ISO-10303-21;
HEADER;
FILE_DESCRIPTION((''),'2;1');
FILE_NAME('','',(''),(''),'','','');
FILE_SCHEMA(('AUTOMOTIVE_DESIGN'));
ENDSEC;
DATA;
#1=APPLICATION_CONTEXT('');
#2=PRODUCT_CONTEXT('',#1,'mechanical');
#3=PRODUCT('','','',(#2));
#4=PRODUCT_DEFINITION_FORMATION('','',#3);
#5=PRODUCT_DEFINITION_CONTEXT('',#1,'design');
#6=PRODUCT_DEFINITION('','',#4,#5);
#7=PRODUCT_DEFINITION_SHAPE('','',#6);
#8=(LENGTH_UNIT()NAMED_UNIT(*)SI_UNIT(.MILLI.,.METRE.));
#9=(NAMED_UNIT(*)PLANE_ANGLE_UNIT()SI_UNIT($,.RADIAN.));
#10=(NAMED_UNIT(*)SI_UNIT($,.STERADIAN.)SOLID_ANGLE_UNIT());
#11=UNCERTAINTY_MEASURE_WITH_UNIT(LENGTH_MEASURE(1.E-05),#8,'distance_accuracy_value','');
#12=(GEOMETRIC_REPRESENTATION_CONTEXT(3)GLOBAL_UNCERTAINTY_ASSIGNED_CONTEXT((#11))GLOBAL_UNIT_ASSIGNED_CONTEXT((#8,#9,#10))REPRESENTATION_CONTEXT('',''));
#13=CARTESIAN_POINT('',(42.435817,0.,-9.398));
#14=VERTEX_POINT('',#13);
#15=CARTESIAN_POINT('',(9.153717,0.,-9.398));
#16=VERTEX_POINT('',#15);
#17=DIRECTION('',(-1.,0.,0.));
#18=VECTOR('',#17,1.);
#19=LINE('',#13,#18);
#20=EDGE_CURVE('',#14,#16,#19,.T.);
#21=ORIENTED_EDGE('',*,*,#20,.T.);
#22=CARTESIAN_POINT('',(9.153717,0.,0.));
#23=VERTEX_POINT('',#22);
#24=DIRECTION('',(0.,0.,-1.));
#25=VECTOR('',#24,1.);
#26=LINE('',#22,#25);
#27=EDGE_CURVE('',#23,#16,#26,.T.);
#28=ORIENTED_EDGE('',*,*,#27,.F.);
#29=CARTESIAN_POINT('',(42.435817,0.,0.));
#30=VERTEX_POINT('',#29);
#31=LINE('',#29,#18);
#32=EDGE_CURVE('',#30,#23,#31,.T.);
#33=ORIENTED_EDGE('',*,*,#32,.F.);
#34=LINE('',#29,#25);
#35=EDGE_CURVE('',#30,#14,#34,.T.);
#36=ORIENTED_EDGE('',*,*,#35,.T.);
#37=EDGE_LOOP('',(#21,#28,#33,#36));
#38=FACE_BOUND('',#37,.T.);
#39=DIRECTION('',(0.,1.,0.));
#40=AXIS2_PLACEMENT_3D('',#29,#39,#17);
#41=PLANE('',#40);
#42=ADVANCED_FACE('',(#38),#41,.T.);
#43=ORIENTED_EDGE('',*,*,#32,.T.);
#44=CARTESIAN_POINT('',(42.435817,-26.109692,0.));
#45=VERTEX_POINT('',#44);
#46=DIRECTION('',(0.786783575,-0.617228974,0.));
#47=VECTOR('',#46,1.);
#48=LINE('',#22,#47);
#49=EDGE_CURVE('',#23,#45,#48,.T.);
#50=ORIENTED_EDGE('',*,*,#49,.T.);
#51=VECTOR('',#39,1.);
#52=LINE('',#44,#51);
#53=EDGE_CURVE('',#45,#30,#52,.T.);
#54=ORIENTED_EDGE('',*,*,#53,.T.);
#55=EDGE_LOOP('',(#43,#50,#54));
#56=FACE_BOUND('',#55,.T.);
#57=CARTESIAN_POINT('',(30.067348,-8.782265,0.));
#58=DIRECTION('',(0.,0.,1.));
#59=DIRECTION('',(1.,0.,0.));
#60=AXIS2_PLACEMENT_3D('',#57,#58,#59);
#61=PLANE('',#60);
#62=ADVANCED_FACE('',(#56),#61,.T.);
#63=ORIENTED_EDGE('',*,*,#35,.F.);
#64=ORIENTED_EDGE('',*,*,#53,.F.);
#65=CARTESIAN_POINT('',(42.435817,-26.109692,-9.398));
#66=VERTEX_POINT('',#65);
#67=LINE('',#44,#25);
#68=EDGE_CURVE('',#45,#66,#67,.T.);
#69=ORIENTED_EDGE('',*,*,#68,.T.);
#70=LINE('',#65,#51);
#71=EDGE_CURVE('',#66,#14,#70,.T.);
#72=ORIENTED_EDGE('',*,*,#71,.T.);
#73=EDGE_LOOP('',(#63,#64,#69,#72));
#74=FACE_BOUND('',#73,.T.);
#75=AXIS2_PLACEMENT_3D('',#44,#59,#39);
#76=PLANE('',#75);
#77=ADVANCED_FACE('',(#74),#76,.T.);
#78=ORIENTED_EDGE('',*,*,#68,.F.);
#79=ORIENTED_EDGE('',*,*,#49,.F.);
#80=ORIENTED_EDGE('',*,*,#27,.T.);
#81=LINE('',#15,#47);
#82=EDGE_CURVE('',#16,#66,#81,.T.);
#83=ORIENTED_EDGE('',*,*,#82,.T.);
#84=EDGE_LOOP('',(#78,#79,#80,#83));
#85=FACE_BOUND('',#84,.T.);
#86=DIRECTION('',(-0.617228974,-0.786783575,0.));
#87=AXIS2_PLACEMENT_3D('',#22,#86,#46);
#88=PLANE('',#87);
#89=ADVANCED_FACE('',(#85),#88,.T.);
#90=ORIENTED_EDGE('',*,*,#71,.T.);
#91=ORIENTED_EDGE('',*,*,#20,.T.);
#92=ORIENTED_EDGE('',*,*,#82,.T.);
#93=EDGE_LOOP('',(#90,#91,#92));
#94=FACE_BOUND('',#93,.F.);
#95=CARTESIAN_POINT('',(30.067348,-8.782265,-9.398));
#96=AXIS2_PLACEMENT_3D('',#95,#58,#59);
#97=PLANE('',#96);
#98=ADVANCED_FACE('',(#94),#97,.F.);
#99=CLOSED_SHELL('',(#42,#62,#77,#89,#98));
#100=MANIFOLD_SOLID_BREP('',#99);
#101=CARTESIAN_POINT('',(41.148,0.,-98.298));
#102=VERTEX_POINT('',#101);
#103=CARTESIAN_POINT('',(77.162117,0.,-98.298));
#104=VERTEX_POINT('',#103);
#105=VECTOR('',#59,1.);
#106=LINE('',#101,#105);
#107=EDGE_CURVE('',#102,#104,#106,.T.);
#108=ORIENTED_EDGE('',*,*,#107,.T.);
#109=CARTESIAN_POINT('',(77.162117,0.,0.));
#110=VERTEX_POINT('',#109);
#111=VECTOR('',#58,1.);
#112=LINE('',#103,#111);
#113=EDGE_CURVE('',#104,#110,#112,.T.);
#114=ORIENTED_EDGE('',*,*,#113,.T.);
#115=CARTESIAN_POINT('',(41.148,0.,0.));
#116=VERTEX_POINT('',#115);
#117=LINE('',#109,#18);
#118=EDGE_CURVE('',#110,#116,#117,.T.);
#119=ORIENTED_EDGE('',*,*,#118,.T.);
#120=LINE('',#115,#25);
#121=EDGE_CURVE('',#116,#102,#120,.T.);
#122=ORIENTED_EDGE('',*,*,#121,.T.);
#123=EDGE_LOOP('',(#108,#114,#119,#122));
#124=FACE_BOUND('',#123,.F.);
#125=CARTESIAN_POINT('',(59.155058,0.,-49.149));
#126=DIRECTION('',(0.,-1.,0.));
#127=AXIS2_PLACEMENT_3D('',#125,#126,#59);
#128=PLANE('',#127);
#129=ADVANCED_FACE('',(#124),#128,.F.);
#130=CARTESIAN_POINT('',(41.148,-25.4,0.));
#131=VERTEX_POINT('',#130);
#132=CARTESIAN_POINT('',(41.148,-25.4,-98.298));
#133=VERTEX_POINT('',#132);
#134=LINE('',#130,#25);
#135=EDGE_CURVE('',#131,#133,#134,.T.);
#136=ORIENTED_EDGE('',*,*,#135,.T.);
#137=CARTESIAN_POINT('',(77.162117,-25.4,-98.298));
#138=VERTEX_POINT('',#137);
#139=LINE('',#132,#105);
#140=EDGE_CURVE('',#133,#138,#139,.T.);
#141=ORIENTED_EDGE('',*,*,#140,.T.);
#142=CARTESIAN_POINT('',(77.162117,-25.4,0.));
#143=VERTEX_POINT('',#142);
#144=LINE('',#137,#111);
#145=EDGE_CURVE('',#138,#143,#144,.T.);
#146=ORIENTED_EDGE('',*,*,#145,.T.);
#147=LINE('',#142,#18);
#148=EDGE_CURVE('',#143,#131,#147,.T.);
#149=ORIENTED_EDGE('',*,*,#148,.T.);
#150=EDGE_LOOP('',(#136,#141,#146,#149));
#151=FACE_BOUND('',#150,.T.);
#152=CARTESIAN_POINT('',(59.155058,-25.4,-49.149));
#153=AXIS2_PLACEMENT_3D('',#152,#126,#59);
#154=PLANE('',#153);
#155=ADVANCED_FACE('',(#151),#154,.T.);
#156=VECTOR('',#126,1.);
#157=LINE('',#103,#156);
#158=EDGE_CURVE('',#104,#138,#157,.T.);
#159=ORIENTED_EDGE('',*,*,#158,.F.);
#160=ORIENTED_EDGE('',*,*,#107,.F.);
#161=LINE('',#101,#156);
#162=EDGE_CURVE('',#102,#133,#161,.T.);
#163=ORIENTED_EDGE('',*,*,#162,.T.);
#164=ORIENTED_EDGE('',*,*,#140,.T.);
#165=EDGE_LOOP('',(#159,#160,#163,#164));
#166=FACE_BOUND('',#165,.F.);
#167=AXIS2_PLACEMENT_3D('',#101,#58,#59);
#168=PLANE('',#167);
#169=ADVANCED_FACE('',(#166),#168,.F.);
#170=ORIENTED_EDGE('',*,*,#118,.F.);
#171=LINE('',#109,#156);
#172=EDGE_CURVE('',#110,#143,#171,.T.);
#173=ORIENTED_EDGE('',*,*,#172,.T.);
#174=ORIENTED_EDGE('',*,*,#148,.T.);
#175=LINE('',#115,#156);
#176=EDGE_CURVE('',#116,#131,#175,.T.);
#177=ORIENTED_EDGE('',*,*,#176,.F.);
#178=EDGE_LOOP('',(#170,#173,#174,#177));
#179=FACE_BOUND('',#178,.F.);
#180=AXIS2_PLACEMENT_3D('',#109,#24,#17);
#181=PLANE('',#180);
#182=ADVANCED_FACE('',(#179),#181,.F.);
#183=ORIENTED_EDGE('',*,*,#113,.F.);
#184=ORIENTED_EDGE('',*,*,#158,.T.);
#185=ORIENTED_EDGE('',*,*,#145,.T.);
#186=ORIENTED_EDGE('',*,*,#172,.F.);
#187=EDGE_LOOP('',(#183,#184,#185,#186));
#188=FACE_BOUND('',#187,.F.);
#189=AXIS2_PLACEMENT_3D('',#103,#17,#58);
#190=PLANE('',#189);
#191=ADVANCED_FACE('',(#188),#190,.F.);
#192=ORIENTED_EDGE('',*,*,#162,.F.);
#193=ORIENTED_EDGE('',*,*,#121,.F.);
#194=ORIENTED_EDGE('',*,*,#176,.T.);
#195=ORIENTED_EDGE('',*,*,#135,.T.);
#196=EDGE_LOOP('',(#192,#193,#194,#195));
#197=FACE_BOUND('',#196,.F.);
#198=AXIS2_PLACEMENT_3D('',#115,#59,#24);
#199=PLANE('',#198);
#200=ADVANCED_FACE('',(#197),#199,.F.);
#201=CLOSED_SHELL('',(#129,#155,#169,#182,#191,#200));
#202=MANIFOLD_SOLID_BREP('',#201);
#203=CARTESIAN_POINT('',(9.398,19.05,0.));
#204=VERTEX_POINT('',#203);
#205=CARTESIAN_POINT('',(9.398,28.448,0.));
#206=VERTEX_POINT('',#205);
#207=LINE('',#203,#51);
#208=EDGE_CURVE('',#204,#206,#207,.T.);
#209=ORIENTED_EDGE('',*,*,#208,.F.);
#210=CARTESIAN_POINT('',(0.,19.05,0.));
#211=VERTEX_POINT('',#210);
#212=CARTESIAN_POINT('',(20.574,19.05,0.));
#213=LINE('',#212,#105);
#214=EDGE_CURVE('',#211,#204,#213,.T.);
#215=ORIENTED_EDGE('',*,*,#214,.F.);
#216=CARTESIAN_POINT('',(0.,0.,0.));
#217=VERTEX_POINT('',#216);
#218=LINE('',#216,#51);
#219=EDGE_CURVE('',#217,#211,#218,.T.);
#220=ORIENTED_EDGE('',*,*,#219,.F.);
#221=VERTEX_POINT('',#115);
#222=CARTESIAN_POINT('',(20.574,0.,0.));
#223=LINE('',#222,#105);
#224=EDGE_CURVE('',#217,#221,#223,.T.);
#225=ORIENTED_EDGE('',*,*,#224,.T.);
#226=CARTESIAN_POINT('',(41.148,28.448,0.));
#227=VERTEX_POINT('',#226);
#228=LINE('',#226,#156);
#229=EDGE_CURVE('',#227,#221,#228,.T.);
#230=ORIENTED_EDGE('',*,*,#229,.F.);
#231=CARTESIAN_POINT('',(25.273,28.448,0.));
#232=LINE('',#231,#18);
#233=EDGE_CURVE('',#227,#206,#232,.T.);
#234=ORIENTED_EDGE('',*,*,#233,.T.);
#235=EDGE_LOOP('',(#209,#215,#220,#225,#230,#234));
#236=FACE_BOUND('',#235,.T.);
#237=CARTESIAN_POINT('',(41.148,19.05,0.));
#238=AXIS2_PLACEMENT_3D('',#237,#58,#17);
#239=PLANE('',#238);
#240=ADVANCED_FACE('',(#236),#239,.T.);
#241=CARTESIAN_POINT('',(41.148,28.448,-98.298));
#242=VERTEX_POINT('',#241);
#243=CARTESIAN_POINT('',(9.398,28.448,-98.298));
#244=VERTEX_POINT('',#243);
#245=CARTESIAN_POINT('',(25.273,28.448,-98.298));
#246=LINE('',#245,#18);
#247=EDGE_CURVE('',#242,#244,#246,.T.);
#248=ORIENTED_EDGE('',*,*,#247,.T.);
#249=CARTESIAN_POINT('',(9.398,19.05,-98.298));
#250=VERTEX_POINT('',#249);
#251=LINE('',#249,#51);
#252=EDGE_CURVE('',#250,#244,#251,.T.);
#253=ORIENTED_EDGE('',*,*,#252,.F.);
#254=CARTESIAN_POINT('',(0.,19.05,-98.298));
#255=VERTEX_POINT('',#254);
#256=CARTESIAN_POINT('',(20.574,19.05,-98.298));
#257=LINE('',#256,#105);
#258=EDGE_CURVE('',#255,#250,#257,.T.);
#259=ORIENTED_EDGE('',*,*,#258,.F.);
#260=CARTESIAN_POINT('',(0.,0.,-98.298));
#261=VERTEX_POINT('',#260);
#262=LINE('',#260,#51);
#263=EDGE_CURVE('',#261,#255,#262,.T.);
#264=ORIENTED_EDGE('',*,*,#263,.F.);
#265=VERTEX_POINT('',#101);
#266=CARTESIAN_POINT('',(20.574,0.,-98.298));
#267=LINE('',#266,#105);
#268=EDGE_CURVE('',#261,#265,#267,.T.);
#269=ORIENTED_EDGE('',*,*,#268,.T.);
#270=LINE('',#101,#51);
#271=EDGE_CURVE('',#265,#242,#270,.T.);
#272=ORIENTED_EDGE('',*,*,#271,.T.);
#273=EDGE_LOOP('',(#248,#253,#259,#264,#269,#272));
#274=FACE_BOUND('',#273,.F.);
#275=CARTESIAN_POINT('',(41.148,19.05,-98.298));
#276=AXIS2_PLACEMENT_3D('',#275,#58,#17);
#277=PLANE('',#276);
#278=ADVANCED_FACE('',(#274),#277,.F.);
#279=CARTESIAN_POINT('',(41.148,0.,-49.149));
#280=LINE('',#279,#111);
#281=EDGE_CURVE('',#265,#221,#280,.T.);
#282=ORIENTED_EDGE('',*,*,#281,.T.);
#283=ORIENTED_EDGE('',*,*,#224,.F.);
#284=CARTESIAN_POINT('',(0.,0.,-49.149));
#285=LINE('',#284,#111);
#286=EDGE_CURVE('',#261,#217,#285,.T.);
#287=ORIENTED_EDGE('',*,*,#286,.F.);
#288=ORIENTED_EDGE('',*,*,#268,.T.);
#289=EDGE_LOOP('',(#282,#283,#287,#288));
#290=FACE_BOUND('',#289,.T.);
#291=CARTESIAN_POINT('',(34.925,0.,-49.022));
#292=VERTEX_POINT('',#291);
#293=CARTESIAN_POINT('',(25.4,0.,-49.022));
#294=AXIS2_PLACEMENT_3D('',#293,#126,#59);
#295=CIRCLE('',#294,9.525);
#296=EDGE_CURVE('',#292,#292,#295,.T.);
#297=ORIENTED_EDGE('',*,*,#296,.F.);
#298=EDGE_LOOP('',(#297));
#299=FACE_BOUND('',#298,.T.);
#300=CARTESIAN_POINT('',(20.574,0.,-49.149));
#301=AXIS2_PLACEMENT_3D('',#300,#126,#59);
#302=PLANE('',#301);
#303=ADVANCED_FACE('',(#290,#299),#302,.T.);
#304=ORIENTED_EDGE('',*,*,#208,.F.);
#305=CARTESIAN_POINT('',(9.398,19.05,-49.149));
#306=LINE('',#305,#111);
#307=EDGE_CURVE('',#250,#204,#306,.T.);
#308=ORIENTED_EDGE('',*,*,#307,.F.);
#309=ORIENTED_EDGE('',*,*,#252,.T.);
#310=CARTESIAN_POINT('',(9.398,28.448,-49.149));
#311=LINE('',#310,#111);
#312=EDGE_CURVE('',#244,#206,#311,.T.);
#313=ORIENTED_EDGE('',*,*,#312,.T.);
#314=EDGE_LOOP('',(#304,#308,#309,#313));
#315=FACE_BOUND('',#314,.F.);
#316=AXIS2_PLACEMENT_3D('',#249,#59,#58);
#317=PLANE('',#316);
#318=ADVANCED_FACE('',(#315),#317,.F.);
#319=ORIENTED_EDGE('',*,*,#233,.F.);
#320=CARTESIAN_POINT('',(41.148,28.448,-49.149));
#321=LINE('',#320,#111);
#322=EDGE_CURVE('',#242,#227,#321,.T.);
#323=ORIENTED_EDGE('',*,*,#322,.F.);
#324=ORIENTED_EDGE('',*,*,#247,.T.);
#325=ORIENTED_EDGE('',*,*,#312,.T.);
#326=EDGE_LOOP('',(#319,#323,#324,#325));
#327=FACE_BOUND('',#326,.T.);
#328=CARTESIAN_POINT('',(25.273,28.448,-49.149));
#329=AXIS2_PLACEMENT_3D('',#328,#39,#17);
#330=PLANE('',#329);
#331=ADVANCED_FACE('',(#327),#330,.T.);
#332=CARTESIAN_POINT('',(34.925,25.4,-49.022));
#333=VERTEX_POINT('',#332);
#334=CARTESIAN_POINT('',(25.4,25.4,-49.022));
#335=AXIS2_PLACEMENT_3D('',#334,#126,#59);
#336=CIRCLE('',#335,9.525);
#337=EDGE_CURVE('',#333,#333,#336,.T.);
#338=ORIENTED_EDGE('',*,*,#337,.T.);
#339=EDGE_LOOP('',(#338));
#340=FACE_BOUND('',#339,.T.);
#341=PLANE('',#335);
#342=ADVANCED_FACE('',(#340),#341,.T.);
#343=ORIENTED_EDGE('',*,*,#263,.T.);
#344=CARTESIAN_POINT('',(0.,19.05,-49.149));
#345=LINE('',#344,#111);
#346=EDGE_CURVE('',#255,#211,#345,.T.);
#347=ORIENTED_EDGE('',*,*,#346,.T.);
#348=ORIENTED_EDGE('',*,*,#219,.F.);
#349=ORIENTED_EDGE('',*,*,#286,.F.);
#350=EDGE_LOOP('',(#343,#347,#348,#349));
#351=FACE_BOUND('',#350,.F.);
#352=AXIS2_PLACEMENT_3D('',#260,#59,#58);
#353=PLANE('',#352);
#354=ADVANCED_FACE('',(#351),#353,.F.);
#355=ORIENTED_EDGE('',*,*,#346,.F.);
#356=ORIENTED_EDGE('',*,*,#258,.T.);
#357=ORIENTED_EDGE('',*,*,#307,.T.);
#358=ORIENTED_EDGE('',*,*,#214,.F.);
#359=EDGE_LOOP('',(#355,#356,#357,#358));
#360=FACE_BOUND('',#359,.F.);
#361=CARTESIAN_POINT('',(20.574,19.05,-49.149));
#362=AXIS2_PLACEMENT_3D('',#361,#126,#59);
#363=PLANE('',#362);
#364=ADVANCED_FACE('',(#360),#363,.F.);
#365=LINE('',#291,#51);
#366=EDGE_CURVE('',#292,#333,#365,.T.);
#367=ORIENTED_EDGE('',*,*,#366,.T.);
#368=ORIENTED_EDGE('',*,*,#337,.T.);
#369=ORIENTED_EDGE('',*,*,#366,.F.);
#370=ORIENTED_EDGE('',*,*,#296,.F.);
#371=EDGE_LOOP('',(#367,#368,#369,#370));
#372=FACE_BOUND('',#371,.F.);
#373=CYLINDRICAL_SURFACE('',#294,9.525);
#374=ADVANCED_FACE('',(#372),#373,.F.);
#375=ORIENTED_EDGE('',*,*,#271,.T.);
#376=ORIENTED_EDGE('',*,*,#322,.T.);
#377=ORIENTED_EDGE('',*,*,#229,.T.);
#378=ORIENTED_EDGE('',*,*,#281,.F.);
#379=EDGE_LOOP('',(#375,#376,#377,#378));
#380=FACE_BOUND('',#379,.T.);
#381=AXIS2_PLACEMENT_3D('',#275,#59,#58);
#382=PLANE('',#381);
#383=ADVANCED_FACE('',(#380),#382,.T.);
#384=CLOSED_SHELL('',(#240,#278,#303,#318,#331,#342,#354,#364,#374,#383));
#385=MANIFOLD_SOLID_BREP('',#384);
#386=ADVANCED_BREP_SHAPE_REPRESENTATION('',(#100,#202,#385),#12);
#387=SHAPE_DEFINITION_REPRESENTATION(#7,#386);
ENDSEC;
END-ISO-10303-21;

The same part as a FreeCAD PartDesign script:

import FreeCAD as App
import Part
import Sketcher
Q = App.Units.Quantity


def add_polygon(sketch, points):
    """Adds a closed chain of lines whose ends are joined by coincident constraints."""
    first, n = sketch.GeometryCount, len(points)
    for a, b in zip(points, points[1:] + points[:1]):
        sketch.addGeometry(Part.LineSegment(App.Vector(*a, 0), App.Vector(*b, 0)), False)
    for i in range(n):
        sketch.addConstraint(Sketcher.Constraint("Coincident", first + i, 2, first + (i + 1) % n, 1))

doc = App.newDocument("Part")
body = doc.addObject("PartDesign::Body", "Body")

# Sketch on XZ plane
sketch1 = body.newObject("Sketcher::SketchObject", "Sketch")
sketch1.AttachmentSupport = (doc.getObject("XZ_Plane"), [""])
sketch1.MapMode = "FlatFace"
add_polygon(sketch1, [(0, 0), (0, -98), (41, -98), (41, 0)])  # lines 0-3
sketch1.addConstraint(Sketcher.Constraint("Vertical", 0))
sketch1.addConstraint(Sketcher.Constraint("Horizontal", 1))
sketch1.addConstraint(Sketcher.Constraint("Vertical", 2))
sketch1.addConstraint(Sketcher.Constraint("Horizontal", 3))
sketch1.addConstraint(Sketcher.Constraint("Coincident", 3, 2, -1, 1))
sketch1.addConstraint(Sketcher.Constraint("DistanceX", 1, 1, 1, 2, Q("1.62 in")))
sketch1.addConstraint(Sketcher.Constraint("DistanceY", 0, 2, 0, 1, Q("3.87 in")))
pad1 = body.newObject("PartDesign::Pad", "Pad")
pad1.Profile = sketch1
pad1.Length = Q("0.75 in")
pad1.Reversed = True

# Sketch on XZ plane
sketch2 = body.newObject("Sketcher::SketchObject", "Sketch001")
sketch2.AttachmentSupport = (doc.getObject("XZ_Plane"), [""])
sketch2.MapMode = "FlatFace"
sketch2.AttachmentOffset = App.Placement(App.Vector(0, 0, -0.75 * 25.4), App.Rotation())
add_polygon(sketch2, [(41, 0), (41, -98), (9, -98), (9, 0)])  # lines 0-3
sketch2.addConstraint(Sketcher.Constraint("Vertical", 0))
sketch2.addConstraint(Sketcher.Constraint("Horizontal", 1))
sketch2.addConstraint(Sketcher.Constraint("Vertical", 2))
sketch2.addConstraint(Sketcher.Constraint("Horizontal", 3))
sketch2.addConstraint(Sketcher.Constraint("PointOnObject", 2, 2, -1))
sketch2.addConstraint(Sketcher.Constraint("DistanceX", 1, 2, 1, 1, Q("1.25 in")))
sketch2.addConstraint(Sketcher.Constraint("DistanceY", 0, 2, 0, 1, Q("3.87 in")))
sketch2.addConstraint(Sketcher.Constraint("DistanceX", -1, 1, 0, 2, Q("1.62 in")))
pad2 = body.newObject("PartDesign::Pad", "Pad001")
pad2.Profile = sketch2
pad2.Length = Q("0.37 in")
pad2.Reversed = True

# Sketch on XZ plane
sketch3 = body.newObject("Sketcher::SketchObject", "Sketch002")
sketch3.AttachmentSupport = (doc.getObject("XZ_Plane"), [""])
sketch3.MapMode = "FlatFace"
sketch3.addGeometry(Part.Circle(App.Vector(25, -49, 0), App.Vector(0, 0, 1), 10), False)
sketch3.addConstraint(Sketcher.Constraint("Diameter", 0, Q("0.75 in")))
sketch3.addConstraint(Sketcher.Constraint("DistanceX", -1, 1, 0, 3, Q("1 in")))
sketch3.addConstraint(Sketcher.Constraint("DistanceY", 0, 3, -1, 1, Q("1.93 in")))
pocket1 = body.newObject("PartDesign::Pocket", "Pocket")
pocket1.Profile = sketch3
pocket1.Length = Q("1 in")
body2 = doc.addObject("PartDesign::Body", "Body001")

# Sketch on XZ plane
sketch4 = body2.newObject("Sketcher::SketchObject", "Sketch003")
sketch4.AttachmentSupport = (doc.getObject("XZ_Plane001"), [""])
sketch4.MapMode = "FlatFace"
add_polygon(sketch4, [(77, 0), (41, 0), (41, -98), (77, -98)])  # lines 0-3
sketch4.addConstraint(Sketcher.Constraint("Horizontal", 0))
sketch4.addConstraint(Sketcher.Constraint("Vertical", 1))
sketch4.addConstraint(Sketcher.Constraint("Horizontal", 2))
sketch4.addConstraint(Sketcher.Constraint("Vertical", 3))
sketch4.addConstraint(Sketcher.Constraint("PointOnObject", 0, 2, -1))
sketch4.addConstraint(Sketcher.Constraint("DistanceY", 1, 2, 1, 1, Q("3.87 in")))
sketch4.addConstraint(Sketcher.Constraint("DistanceX", -1, 1, 0, 2, Q("1.62 in")))
sketch4.addConstraint(Sketcher.Constraint("DistanceX", 0, 2, 0, 1, Q("36.014117 mm")))
pad3 = body2.newObject("PartDesign::Pad", "Pad002")
pad3.Profile = sketch4
pad3.Length = Q("1 in")
body3 = doc.addObject("PartDesign::Body", "Body002")

# Sketch on XY plane
sketch5 = body3.newObject("Sketcher::SketchObject", "Sketch004")
sketch5.AttachmentSupport = (doc.getObject("XY_Plane002"), [""])
sketch5.MapMode = "FlatFace"
add_polygon(sketch5, [(9, 0), (42, -26), (42, 0)])  # lines 0-2
sketch5.addConstraint(Sketcher.Constraint("Vertical", 1))
sketch5.addConstraint(Sketcher.Constraint("Horizontal", 2))
sketch5.addConstraint(Sketcher.Constraint("PointOnObject", 1, 2, -1))
sketch5.addConstraint(Sketcher.Constraint("DistanceX", 2, 2, 2, 1, Q("33.2821 mm")))
sketch5.addConstraint(Sketcher.Constraint("DistanceY", 1, 1, 1, 2, Q("26.109692 mm")))
sketch5.addConstraint(Sketcher.Constraint("DistanceX", -1, 1, 0, 2, Q("42.435817 mm")))
pad4 = body3.newObject("PartDesign::Pad", "Pad003")
pad4.Profile = sketch5
pad4.Length = Q("0.37 in")
pad4.Reversed = True

doc.recompute()
